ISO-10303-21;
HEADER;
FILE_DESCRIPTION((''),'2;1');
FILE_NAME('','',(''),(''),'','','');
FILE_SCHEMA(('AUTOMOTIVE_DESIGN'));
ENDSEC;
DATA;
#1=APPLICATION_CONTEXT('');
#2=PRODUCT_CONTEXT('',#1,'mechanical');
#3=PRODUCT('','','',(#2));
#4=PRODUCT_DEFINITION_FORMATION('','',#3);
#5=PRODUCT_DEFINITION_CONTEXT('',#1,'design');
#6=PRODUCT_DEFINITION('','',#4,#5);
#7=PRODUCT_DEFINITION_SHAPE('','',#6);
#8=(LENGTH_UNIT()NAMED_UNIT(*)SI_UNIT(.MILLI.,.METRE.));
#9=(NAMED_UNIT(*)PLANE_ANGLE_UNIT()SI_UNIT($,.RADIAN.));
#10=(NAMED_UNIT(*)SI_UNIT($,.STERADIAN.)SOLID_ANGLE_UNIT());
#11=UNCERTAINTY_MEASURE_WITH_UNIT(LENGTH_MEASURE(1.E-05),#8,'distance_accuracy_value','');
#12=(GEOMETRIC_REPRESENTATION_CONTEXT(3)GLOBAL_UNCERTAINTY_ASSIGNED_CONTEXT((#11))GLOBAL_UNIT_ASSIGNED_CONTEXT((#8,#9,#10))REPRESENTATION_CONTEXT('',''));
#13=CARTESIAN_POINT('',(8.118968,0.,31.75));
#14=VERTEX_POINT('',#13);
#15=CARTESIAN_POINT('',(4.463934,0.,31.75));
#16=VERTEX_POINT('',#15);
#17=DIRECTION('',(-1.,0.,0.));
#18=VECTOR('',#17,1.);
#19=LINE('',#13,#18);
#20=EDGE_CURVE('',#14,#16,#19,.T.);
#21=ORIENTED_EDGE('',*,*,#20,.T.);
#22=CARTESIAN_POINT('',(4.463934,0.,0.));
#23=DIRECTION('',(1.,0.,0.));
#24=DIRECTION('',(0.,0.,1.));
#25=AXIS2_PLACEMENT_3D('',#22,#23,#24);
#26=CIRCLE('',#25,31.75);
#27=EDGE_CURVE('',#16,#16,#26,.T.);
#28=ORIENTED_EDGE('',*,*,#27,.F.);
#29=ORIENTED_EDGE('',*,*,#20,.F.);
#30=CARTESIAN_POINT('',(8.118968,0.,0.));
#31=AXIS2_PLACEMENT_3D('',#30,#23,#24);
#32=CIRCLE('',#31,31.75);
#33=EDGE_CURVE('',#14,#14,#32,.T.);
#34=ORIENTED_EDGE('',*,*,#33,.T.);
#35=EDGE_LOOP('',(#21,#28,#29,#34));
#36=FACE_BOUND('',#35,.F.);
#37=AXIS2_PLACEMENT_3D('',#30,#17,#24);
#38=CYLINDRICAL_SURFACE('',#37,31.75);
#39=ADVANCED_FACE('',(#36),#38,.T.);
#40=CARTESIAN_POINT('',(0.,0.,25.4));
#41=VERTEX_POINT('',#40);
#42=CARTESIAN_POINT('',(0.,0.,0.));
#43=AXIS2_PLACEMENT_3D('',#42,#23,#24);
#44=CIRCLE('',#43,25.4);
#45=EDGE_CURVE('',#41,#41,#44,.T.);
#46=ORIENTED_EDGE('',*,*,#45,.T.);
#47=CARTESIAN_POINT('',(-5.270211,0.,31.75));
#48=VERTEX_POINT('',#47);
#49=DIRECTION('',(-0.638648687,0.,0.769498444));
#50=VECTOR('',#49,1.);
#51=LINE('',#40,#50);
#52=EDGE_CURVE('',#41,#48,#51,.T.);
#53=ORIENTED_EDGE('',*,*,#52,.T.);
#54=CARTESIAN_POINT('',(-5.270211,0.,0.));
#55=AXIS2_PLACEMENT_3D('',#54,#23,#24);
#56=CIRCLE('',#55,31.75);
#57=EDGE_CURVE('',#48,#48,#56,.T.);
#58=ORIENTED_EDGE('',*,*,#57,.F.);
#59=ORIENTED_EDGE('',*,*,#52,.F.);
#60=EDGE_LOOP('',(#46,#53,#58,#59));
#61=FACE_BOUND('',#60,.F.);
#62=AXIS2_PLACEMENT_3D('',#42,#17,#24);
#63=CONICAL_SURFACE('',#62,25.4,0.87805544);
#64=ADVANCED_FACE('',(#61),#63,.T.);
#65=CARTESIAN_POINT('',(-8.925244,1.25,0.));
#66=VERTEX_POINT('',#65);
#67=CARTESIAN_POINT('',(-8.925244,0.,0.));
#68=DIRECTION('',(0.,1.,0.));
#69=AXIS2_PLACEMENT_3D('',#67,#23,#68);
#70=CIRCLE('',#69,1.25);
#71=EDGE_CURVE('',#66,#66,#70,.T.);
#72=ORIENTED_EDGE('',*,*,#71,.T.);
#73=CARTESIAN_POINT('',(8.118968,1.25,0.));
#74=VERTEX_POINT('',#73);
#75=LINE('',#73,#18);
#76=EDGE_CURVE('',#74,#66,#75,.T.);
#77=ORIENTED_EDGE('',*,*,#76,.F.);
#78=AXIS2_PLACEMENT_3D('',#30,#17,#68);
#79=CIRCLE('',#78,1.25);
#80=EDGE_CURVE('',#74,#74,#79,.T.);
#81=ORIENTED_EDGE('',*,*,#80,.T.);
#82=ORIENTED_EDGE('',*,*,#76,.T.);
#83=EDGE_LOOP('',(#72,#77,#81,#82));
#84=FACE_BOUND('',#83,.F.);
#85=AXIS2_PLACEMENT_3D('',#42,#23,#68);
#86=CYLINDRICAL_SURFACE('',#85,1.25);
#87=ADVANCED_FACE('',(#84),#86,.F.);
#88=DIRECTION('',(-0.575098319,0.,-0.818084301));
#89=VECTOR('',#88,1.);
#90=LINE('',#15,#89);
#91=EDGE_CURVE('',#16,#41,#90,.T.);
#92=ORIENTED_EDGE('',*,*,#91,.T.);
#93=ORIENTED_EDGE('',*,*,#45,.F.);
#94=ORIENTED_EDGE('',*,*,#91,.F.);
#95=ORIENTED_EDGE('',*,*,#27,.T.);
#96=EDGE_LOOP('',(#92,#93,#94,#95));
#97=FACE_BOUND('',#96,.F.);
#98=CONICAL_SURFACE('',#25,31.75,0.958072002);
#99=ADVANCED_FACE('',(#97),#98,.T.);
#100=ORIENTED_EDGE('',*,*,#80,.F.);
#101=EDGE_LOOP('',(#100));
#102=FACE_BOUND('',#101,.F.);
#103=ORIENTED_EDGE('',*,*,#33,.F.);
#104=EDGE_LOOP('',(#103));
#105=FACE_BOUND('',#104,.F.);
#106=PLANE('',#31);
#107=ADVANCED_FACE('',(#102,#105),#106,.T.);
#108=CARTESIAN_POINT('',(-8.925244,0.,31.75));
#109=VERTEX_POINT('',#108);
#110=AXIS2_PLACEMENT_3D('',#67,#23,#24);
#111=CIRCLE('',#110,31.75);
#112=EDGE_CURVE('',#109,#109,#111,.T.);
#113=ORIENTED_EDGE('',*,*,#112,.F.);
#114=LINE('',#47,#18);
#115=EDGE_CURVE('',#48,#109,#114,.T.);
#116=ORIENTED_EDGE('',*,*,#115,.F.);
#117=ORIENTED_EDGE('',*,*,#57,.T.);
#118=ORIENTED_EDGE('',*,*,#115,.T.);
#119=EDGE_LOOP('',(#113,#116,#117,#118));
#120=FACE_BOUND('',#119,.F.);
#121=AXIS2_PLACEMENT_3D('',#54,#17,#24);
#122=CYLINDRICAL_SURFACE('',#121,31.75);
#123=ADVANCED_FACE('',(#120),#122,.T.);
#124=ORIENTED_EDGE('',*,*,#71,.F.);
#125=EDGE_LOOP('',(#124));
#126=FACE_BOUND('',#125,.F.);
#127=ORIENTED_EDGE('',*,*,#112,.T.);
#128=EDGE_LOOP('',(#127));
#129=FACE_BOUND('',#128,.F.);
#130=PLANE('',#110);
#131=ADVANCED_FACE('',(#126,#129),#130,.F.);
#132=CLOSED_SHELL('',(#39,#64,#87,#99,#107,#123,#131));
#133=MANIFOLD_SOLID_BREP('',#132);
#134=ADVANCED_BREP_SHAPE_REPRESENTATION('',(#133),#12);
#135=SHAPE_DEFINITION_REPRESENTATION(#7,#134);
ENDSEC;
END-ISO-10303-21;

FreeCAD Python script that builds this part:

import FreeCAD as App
import Part
import Sketcher

V = App.Vector


def add_polygon(sketch, points):
    """Adds a closed chain of lines whose ends are joined by coincident constraints."""
    first, n = sketch.GeometryCount, len(points)
    for a, b in zip(points, points[1:] + points[:1]):
        sketch.addGeometry(Part.LineSegment(App.Vector(*a, 0), App.Vector(*b, 0)), False)
    for i in range(n):
        sketch.addConstraint(Sketcher.Constraint("Coincident", first + i, 2, first + (i + 1) % n, 1))

doc = App.newDocument("Part")
params = doc.addObject("Spreadsheet::Sheet", "Params")
for row, (alias, value) in enumerate([
    ("sketch1_height", "31.75 mm"),
    ("revolution_angle", "360 deg"),
    ("sketch2_diameter", "2.5 mm"),
], start=1):
    params.set(f"A{row}", alias)
    params.set(f"B{row}", "=" + value)
    params.setAlias(f"B{row}", alias)

body = doc.addObject("PartDesign::Body", "Body")

sketch1 = doc.addObject("Sketcher::SketchObject", "Sketch")
body.addObject(sketch1)
sketch1.AttachmentSupport = (doc.XZ_Plane, [""])
sketch1.MapMode = "FlatFace"
add_polygon(sketch1, [(-8.925244, 31.75), (-8.925244, 0), (8.118968, 0), (8.118968, 31.75), (4.463934, 31.75), (0, 25.4), (-5.270211, 31.75)])
sketch1.addConstraint([
    Sketcher.Constraint("Vertical", 0),
    Sketcher.Constraint("Horizontal", 1),
    Sketcher.Constraint("Vertical", 2),
    Sketcher.Constraint("Horizontal", 3),
    Sketcher.Constraint("Horizontal", 6),
    Sketcher.Constraint("PointOnObject", 0, 2, -1),
    Sketcher.Constraint("PointOnObject", 4, 2, -2),
    Sketcher.Constraint("Horizontal", 3, 2, 5, 2),
    Sketcher.Constraint("Equal", 3, 6),
    Sketcher.Constraint("DistanceY", 0, 2, 0, 1, 31.75),
    Sketcher.Constraint("DistanceY", -1, 1, 4, 2, 25.4),
    Sketcher.Constraint("Distance", 5, 8.252128),
    Sketcher.Constraint("DistanceX", 1, 1, 1, 2, 17.044212),
    Sketcher.Constraint("DistanceX", 3, 2, 3, 1, 3.655034),
])
sketch1.setExpression("Constraints[16]", "Params.sketch1_height")
revolution = doc.addObject("PartDesign::Revolution", "Revolution")
body.addObject(revolution)
revolution.Profile = sketch1
revolution.ReferenceAxis = (sketch1, ["H_Axis"])
revolution.setExpression("Angle", "Params.revolution_angle")

sketch2 = doc.addObject("Sketcher::SketchObject", "Sketch001")
body.addObject(sketch2)
sketch2.AttachmentSupport = (doc.YZ_Plane, [""])
sketch2.MapMode = "FlatFace"
sketch2.addGeometry(Part.Circle(V(0, 0, 0), V(0, 0, 1), 1.25), False)
sketch2.addConstraint([
    Sketcher.Constraint("Coincident", 0, 3, -1, 1),
    Sketcher.Constraint("Diameter", 0, 2.5),
])
sketch2.setExpression("Constraints[1]", "Params.sketch2_diameter")
pocket1 = doc.addObject("PartDesign::Pocket", "Pocket")
body.addObject(pocket1)
pocket1.Profile = sketch2
pocket1.Type = "ThroughAll"
pocket1.Midplane = True

doc.recompute()
